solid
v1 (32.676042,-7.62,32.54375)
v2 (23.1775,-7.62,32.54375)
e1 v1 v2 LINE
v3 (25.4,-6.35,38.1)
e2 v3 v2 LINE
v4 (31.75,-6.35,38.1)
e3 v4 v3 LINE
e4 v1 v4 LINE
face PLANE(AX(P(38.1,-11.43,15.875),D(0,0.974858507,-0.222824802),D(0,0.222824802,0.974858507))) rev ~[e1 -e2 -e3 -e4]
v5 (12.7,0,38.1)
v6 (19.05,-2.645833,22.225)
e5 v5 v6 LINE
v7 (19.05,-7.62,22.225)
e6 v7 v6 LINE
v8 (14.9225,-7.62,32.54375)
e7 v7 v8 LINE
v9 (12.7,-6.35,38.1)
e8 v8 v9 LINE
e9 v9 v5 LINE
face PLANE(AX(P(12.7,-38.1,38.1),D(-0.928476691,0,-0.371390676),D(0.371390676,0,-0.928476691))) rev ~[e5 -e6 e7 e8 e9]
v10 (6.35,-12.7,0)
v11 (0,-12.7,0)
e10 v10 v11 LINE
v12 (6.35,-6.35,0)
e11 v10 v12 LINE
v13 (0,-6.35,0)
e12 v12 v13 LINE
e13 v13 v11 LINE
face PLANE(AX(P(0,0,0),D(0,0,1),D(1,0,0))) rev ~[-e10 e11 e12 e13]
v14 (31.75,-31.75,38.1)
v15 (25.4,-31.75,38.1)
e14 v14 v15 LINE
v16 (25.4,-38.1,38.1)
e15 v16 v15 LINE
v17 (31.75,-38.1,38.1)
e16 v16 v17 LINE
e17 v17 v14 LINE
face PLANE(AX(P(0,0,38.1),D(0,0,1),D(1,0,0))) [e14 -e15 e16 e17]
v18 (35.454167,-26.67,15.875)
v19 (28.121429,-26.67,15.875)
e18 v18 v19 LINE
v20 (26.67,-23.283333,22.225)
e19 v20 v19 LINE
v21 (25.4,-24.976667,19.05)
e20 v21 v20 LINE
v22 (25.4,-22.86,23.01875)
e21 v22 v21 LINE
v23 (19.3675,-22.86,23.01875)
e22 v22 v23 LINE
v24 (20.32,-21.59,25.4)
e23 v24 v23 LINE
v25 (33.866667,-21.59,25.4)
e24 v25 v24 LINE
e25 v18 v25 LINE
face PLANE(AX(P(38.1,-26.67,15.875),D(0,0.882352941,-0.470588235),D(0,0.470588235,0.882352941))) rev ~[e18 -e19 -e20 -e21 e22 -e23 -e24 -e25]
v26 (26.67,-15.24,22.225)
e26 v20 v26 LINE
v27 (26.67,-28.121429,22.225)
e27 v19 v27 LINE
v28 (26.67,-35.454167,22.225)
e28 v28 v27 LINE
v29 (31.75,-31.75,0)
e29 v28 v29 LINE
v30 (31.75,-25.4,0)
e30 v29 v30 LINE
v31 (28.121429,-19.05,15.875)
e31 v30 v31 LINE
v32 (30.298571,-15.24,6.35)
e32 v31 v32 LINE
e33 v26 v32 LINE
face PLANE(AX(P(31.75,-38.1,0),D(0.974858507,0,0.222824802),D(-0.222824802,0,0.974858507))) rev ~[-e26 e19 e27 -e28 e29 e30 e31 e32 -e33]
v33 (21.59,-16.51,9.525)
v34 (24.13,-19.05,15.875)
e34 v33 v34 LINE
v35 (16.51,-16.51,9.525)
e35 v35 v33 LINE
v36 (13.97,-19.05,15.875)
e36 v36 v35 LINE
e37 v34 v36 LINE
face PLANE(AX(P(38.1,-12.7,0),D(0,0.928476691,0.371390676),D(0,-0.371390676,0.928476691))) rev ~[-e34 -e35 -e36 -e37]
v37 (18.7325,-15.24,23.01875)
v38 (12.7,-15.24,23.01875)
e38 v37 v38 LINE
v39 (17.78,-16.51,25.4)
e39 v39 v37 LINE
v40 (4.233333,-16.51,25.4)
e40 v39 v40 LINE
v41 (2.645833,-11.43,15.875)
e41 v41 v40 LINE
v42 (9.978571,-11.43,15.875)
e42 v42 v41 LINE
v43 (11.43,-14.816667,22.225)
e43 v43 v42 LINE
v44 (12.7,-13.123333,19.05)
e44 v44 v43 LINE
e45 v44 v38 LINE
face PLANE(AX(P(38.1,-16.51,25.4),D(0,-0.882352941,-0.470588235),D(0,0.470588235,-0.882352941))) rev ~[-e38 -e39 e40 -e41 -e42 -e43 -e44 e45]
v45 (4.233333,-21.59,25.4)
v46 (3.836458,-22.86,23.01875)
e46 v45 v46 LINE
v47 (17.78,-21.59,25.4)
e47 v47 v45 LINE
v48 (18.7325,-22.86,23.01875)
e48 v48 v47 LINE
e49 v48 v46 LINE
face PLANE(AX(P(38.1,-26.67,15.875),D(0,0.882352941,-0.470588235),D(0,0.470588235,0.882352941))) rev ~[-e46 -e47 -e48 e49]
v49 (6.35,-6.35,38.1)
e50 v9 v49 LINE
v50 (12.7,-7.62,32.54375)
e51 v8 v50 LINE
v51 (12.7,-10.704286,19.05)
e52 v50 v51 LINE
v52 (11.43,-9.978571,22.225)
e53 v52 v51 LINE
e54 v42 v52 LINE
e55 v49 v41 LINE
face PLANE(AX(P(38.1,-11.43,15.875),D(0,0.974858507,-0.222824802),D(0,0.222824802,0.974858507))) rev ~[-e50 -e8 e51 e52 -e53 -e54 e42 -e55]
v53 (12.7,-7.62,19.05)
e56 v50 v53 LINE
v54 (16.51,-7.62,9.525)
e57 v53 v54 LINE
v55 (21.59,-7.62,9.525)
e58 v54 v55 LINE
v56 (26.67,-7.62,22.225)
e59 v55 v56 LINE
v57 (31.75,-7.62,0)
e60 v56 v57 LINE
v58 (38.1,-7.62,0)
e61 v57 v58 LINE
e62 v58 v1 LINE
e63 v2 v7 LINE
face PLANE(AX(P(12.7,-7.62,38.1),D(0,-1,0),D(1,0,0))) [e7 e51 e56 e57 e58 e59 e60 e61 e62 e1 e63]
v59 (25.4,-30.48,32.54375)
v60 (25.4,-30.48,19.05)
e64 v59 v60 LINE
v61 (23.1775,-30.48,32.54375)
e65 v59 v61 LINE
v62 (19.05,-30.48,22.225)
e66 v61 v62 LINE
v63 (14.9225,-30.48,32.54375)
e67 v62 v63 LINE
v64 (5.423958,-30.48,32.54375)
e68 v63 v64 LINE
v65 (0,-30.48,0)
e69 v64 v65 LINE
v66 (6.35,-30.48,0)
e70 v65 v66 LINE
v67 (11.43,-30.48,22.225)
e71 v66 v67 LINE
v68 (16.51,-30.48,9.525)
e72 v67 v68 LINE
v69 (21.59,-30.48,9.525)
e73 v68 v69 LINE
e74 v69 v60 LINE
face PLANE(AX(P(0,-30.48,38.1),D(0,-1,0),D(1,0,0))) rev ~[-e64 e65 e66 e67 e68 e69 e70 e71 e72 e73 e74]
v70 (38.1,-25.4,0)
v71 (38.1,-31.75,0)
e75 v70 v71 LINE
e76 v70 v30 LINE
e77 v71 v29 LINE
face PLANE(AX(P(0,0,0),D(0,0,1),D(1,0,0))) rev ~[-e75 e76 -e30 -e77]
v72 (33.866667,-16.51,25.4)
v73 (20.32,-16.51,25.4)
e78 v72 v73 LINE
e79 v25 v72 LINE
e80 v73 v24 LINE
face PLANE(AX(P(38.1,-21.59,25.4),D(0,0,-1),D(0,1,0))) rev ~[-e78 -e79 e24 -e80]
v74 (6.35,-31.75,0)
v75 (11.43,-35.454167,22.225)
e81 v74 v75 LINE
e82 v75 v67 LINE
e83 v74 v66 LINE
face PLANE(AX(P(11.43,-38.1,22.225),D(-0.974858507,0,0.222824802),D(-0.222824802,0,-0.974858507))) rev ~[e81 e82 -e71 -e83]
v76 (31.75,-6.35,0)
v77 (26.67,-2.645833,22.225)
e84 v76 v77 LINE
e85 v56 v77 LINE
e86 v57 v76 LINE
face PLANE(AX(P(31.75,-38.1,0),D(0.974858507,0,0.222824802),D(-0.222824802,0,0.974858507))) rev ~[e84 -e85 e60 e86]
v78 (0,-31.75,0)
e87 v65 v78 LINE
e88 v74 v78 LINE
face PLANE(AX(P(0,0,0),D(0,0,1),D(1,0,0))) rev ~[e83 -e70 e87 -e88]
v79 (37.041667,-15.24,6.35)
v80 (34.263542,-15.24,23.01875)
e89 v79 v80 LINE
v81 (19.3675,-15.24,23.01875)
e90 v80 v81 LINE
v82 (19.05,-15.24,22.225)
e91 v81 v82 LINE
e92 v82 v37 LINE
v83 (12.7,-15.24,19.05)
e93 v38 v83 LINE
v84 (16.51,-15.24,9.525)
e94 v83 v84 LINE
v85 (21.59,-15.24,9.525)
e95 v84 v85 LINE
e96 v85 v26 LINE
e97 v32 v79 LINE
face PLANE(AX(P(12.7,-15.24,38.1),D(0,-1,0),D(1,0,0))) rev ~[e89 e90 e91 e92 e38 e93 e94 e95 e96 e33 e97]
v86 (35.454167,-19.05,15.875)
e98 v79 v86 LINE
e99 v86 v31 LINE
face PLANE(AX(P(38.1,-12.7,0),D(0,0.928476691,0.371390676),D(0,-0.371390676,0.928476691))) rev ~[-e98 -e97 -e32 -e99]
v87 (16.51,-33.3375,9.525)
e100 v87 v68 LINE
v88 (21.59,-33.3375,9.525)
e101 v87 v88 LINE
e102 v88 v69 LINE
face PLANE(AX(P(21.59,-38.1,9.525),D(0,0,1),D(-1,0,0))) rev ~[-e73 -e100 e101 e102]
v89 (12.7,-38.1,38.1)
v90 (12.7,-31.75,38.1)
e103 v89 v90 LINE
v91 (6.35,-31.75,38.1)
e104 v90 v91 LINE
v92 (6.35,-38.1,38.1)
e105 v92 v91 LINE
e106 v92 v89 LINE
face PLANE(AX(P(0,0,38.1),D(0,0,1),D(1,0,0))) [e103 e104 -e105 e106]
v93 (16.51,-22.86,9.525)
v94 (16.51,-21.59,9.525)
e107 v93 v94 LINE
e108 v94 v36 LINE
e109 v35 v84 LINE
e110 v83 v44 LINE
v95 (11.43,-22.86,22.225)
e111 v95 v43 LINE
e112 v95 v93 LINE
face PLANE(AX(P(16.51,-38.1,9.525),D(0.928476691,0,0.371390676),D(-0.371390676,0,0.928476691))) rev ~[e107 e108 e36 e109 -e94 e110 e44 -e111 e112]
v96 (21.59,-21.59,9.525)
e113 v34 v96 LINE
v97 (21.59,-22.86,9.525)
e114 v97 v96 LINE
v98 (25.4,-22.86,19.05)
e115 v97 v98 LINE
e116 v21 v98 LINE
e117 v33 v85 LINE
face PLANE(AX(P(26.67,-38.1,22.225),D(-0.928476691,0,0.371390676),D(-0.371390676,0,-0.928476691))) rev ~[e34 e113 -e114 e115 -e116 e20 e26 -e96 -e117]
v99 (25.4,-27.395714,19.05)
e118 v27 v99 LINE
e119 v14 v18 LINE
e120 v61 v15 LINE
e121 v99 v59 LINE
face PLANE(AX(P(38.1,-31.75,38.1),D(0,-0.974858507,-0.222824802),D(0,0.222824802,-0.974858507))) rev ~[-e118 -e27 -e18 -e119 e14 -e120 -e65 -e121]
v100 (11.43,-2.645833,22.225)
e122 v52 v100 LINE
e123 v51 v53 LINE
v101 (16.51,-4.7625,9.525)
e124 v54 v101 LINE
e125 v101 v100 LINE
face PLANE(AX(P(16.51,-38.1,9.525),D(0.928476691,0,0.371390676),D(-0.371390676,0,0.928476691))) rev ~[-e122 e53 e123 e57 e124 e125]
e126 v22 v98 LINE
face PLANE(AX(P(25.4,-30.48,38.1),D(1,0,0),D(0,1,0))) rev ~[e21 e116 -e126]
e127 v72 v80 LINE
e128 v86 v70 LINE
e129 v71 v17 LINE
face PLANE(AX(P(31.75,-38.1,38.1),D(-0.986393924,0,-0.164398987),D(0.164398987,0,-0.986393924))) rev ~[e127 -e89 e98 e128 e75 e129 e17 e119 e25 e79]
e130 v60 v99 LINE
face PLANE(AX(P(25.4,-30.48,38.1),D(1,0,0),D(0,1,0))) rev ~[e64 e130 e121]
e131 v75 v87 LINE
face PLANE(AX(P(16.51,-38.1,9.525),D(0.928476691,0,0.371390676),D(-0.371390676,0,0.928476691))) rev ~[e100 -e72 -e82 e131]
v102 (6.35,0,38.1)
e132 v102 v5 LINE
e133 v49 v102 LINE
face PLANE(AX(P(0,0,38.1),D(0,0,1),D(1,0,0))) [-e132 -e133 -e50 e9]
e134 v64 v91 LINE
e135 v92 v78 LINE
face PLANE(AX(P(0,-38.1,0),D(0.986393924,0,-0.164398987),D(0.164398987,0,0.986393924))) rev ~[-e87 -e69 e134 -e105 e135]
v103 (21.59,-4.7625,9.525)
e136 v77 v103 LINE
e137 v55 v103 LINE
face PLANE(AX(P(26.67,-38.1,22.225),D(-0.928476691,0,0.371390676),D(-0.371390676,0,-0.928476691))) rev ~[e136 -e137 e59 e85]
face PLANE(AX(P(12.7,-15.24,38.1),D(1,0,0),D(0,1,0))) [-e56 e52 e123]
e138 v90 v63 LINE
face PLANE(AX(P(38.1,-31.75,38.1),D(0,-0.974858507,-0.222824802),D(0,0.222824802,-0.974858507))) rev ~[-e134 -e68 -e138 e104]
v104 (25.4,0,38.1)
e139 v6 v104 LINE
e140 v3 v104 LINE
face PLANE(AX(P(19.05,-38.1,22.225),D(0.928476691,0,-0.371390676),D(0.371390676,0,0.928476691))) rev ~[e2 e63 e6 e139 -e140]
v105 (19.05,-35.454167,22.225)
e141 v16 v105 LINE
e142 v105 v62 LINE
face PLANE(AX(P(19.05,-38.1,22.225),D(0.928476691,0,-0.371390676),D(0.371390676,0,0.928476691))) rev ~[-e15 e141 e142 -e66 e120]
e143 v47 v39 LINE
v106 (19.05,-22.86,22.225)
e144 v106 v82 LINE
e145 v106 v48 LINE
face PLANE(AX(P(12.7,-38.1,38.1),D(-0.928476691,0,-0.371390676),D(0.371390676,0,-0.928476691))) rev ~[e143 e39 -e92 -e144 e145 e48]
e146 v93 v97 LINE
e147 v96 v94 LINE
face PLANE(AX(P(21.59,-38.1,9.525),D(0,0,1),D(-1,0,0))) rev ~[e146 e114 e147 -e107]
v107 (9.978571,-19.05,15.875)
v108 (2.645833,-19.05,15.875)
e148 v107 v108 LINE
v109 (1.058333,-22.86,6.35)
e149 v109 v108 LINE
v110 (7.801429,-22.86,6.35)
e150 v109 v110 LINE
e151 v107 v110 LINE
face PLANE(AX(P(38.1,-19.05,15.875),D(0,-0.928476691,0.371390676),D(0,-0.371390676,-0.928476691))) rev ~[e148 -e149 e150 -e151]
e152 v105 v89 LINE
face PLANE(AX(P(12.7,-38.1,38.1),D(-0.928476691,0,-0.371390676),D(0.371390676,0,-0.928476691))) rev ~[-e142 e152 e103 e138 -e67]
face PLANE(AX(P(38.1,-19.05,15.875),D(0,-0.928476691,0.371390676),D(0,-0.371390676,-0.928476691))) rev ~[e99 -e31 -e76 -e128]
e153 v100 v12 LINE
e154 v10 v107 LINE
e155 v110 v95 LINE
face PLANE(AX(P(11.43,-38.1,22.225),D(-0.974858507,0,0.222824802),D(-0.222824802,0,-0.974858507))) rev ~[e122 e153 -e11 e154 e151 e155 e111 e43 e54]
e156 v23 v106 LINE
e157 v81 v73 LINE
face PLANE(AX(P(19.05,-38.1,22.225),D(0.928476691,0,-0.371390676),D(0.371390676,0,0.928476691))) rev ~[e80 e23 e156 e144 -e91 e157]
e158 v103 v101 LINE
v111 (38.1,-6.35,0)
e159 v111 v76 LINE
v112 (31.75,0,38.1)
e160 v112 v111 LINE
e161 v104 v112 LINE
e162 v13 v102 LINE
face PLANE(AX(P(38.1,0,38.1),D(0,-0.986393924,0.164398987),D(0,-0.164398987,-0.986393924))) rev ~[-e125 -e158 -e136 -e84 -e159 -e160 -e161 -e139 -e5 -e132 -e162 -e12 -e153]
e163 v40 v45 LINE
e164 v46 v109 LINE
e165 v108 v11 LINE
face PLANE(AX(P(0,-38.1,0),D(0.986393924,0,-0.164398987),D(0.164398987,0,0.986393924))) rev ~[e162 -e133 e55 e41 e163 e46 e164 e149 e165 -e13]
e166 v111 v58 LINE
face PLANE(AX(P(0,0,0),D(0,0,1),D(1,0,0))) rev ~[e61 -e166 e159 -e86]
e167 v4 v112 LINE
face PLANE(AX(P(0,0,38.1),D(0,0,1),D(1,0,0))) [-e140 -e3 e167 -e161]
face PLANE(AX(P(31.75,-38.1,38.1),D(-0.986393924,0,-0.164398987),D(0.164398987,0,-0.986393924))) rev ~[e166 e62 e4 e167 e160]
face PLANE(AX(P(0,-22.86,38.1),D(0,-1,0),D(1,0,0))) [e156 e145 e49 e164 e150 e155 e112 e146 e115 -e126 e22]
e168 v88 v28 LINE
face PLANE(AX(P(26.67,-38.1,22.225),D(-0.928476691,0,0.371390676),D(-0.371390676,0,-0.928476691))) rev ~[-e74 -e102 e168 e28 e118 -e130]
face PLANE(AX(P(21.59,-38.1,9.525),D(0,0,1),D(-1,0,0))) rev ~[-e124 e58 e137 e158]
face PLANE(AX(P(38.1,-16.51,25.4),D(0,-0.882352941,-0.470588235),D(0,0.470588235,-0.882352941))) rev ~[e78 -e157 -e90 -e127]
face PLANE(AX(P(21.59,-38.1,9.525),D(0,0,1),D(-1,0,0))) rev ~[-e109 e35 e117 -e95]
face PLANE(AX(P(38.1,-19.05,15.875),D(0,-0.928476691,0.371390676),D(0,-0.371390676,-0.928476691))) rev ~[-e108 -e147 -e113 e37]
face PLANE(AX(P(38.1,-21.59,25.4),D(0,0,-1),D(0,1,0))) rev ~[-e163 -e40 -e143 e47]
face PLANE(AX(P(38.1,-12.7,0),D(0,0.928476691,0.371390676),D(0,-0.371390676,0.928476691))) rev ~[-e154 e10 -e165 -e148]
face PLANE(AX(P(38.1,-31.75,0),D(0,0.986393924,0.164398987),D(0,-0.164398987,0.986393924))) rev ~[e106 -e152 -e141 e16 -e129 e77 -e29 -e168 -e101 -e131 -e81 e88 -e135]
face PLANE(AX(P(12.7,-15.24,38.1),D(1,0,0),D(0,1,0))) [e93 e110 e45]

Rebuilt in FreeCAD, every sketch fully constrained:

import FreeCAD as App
import Part
import Sketcher
from FreeCAD import Vector
Q = App.Units.Quantity


def add_polygon(sketch, points):
    """Adds a closed chain of lines whose ends are joined by coincident constraints."""
    first, n = sketch.GeometryCount, len(points)
    for a, b in zip(points, points[1:] + points[:1]):
        sketch.addGeometry(Part.LineSegment(App.Vector(*a, 0), App.Vector(*b, 0)), False)
    for i in range(n):
        sketch.addConstraint(Sketcher.Constraint("Coincident", first + i, 2, first + (i + 1) % n, 1))

doc = App.newDocument("Part")
params = doc.addObject("Spreadsheet::Sheet", "Params")
for row, (alias, value) in enumerate([
    ("sketch1_width", "1.5 in"),
    ("pad1_length", "1.5 in"),
    ("sketch2_width", "1 in"),
    ("sketch2_width2", "0.2 in"),
    ("sketch2_width3", "0.5 in"),
    ("sketch2_height", "1.5 in"),
    ("sketch2_length", "0.425 in"),
    ("pocket1_length", "1.5 in"),
    ("sketch3_width", "1 in"),
    ("sketch3_width2", "0.5 in"),
    ("sketch3_width3", "0.2 in"),
    ("sketch3_height", "1.5 in"),
    ("pocket2_length", "1.5 in"),
    ("sketch4_width", "1 in"),
    ("sketch4_height", "0.3 in"),
    ("pocket3_length", "1.5 in"),
], start=1):
    params.set(f"A{row}", alias)
    params.set(f"B{row}", "=" + value)
    params.setAlias(f"B{row}", alias)

body = doc.addObject("PartDesign::Body", "Body")

sketch1 = body.newObject("Sketcher::SketchObject", "Sketch")
sketch1.AttachmentSupport = (doc.getObject("XZ_Plane"), [""])
sketch1.MapMode = "FlatFace"
add_polygon(sketch1, [(0, 38), (0, 0), (38, 0), (38, 38)])
sketch1.addConstraint(Sketcher.Constraint("Vertical", 0))
sketch1.addConstraint(Sketcher.Constraint("Horizontal", 1))
sketch1.addConstraint(Sketcher.Constraint("Vertical", 2))
sketch1.addConstraint(Sketcher.Constraint("Horizontal", 3))
sketch1.addConstraint(Sketcher.Constraint("Coincident", 0, 2, -1, 1))
sketch1.addConstraint(Sketcher.Constraint("Equal", 3, 0))
sketch1.addConstraint(Sketcher.Constraint("DistanceX", 1, 1, 1, 2, Q("1.5 in")))
sketch1.setExpression("Constraints[10]", "Params.sketch1_width")
pad1 = body.newObject("PartDesign::Pad", "Pad")
pad1.Profile = sketch1
pad1.setExpression("Length", "Params.pad1_length")

sketch2 = body.newObject("Sketcher::SketchObject", "Sketch001")
sketch2.AttachmentSupport = (doc.getObject("YZ_Plane"), [""])
sketch2.MapMode = "FlatFace"
sketch2.AttachmentOffset = App.Placement(Vector(0, 0, 1.5 * 25.4), App.Rotation())
add_polygon(sketch2, [(-6, 38), (-32, 38), (-27, 16), (-22, 25), (-17, 25), (-11, 16)])
add_polygon(sketch2, [(-32, 0), (-38, 38), (-38, 0)])
add_polygon(sketch2, [(-19, 16), (-25, 0), (-13, 0)])
add_polygon(sketch2, [(0, 0), (0, 38), (-6, 0)])
sketch2.addConstraint(Sketcher.Constraint("Horizontal", 0))
sketch2.addConstraint(Sketcher.Constraint("Horizontal", 3))
sketch2.addConstraint(Sketcher.Constraint("Vertical", 7))
sketch2.addConstraint(Sketcher.Constraint("Horizontal", 8))
sketch2.addConstraint(Sketcher.Constraint("Horizontal", 10))
sketch2.addConstraint(Sketcher.Constraint("Vertical", 12))
sketch2.addConstraint(Sketcher.Constraint("Horizontal", 14))
sketch2.addConstraint(Sketcher.Constraint("Coincident", 14, 2, -1, 1))
sketch2.addConstraint(Sketcher.Constraint("PointOnObject", 7, 2, -1))
sketch2.addConstraint(Sketcher.Constraint("PointOnObject", 9, 2, -1))
sketch2.addConstraint(Sketcher.Constraint("Horizontal", 1, 2, 4, 2))
sketch2.addConstraint(Sketcher.Constraint("Horizontal", 5, 2, 6, 2))
sketch2.addConstraint(Sketcher.Constraint("Horizontal", 4, 2, 11, 2))
sketch2.addConstraint(Sketcher.Constraint("Horizontal", 6, 2, 12, 2))
sketch2.addConstraint(Sketcher.Constraint("Vertical", 0, 2, 8, 2))
sketch2.addConstraint(Sketcher.Constraint("Vertical", 5, 2, 13, 2))
sketch2.addConstraint(Sketcher.Constraint("Equal", 8, 14))
sketch2.addConstraint(Sketcher.Constraint("Equal", 2, 4))
sketch2.addConstraint(Sketcher.Constraint("Equal", 1, 5))
sketch2.addConstraint(Sketcher.Constraint("Equal", 9, 11))
sketch2.addConstraint(Sketcher.Constraint("DistanceX", 0, 2, 0, 1, Q("1 in")))
sketch2.addConstraint(Sketcher.Constraint("DistanceX", 3, 1, 3, 2, Q("0.2 in")))
sketch2.addConstraint(Sketcher.Constraint("DistanceX", 10, 1, 10, 2, Q("0.5 in")))
sketch2.addConstraint(Sketcher.Constraint("DistanceY", 7, 2, 7, 1, Q("1.5 in")))
sketch2.addConstraint(Sketcher.Constraint("DistanceY", -1, 1, 2, 2, Q("1 in")))
sketch2.addConstraint(Sketcher.Constraint("DistanceX", 9, 2, -1, 1, Q("1 in")))
sketch2.addConstraint(Sketcher.Constraint("DistanceX", 7, 2, 10, 2, Q("1 in")))
sketch2.addConstraint(Sketcher.Constraint("DistanceX", 0, 2, 1, 2, Q("0.2 in")))
sketch2.addConstraint(Sketcher.Constraint("Distance", 2, Q("0.425 in")))
sketch2.setExpression("Constraints[35]", "Params.sketch2_width")
sketch2.setExpression("Constraints[36]", "Params.sketch2_width2")
sketch2.setExpression("Constraints[37]", "Params.sketch2_width3")
sketch2.setExpression("Constraints[38]", "Params.sketch2_height")
sketch2.setExpression("Constraints[43]", "Params.sketch2_length")
pocket1 = body.newObject("PartDesign::Pocket", "Pocket")
pocket1.Profile = sketch2
pocket1.setExpression("Length", "Params.pocket1_length")

sketch3 = body.newObject("Sketcher::SketchObject", "Sketch002")
sketch3.AttachmentSupport = (doc.getObject("XZ_Plane"), [""])
sketch3.MapMode = "FlatFace"
sketch3.AttachmentOffset = App.Placement(Vector(0, 0, 1.5 * 25.4), App.Rotation())
add_polygon(sketch3, [(25, 38), (13, 38), (19, 22)])
add_polygon(sketch3, [(6, 38), (0, 38), (0, 0)])
add_polygon(sketch3, [(11, 22), (6, 0), (32, 0), (27, 22), (22, 10), (17, 10)])
add_polygon(sketch3, [(32, 38), (38, 0), (38, 38)])
sketch3.addConstraint(Sketcher.Constraint("Horizontal", 0))
sketch3.addConstraint(Sketcher.Constraint("Horizontal", 3))
sketch3.addConstraint(Sketcher.Constraint("Vertical", 4))
sketch3.addConstraint(Sketcher.Constraint("Horizontal", 7))
sketch3.addConstraint(Sketcher.Constraint("Horizontal", 10))
sketch3.addConstraint(Sketcher.Constraint("Vertical", 13))
sketch3.addConstraint(Sketcher.Constraint("Horizontal", 14))
sketch3.addConstraint(Sketcher.Constraint("Coincident", 4, 2, -1, 1))
sketch3.addConstraint(Sketcher.Constraint("PointOnObject", 6, 2, -1))
sketch3.addConstraint(Sketcher.Constraint("PointOnObject", 12, 2, -1))
sketch3.addConstraint(Sketcher.Constraint("Parallel", 2, 9))
sketch3.addConstraint(Sketcher.Constraint("Parallel", 1, 11))
sketch3.addConstraint(Sketcher.Constraint("Horizontal", 2, 2, 3, 2))
sketch3.addConstraint(Sketcher.Constraint("Horizontal", 1, 2, 8, 2))
sketch3.addConstraint(Sketcher.Constraint("Horizontal", 8, 2, 11, 2))
sketch3.addConstraint(Sketcher.Constraint("Horizontal", 5, 2, 13, 2))
sketch3.addConstraint(Sketcher.Constraint("Vertical", 5, 2, 6, 2))
sketch3.addConstraint(Sketcher.Constraint("Vertical", 7, 2, 14, 2))
sketch3.addConstraint(Sketcher.Constraint("Equal", 3, 14))
sketch3.addConstraint(Sketcher.Constraint("Equal", 1, 2))
sketch3.addConstraint(Sketcher.Constraint("Equal", 6, 8))
sketch3.addConstraint(Sketcher.Constraint("DistanceX", 7, 1, 7, 2, Q("1 in")))
sketch3.addConstraint(Sketcher.Constraint("DistanceX", 0, 2, 0, 1, Q("0.5 in")))
sketch3.addConstraint(Sketcher.Constraint("DistanceX", 10, 2, 10, 1, Q("0.2 in")))
sketch3.addConstraint(Sketcher.Constraint("DistanceY", 4, 2, 4, 1, Q("1.5 in")))
sketch3.addConstraint(Sketcher.Constraint("DistanceX", -1, 1, 2, 2, Q("1 in")))
sketch3.addConstraint(Sketcher.Constraint("DistanceX", 0, 2, 13, 2, Q("1 in")))
sketch3.addConstraint(Sketcher.Constraint("DistanceX", 1, 2, 8, 2, Q("0.3 in")))
sketch3.addConstraint(Sketcher.Constraint("DistanceY", 9, 2, 1, 2, Q("0.5 in")))
sketch3.setExpression("Constraints[36]", "Params.sketch3_width")
sketch3.setExpression("Constraints[37]", "Params.sketch3_width2")
sketch3.setExpression("Constraints[38]", "Params.sketch3_width3")
sketch3.setExpression("Constraints[39]", "Params.sketch3_height")
pocket2 = body.newObject("PartDesign::Pocket", "Pocket001")
pocket2.Profile = sketch3
pocket2.setExpression("Length", "Params.pocket2_length")

sketch4 = body.newObject("Sketcher::SketchObject", "Sketch003")
sketch4.AttachmentSupport = (doc.getObject("XY_Plane"), [""])
sketch4.MapMode = "FlatFace"
sketch4.AttachmentOffset = App.Placement(Vector(0, 0, 1.5 * 25.4), App.Rotation())
add_polygon(sketch4, [(0, -23), (0, -30), (25, -30), (25, -23)])
add_polygon(sketch4, [(13, -8), (13, -15), (38, -15), (38, -8)])
sketch4.addConstraint(Sketcher.Constraint("Vertical", 0))
sketch4.addConstraint(Sketcher.Constraint("Horizontal", 1))
sketch4.addConstraint(Sketcher.Constraint("Vertical", 2))
sketch4.addConstraint(Sketcher.Constraint("Horizontal", 3))
sketch4.addConstraint(Sketcher.Constraint("Vertical", 4))
sketch4.addConstraint(Sketcher.Constraint("Horizontal", 5))
sketch4.addConstraint(Sketcher.Constraint("Vertical", 6))
sketch4.addConstraint(Sketcher.Constraint("Horizontal", 7))
sketch4.addConstraint(Sketcher.Constraint("PointOnObject", 0, 2, -2))
sketch4.addConstraint(Sketcher.Constraint("Equal", 3, 5))
sketch4.addConstraint(Sketcher.Constraint("Equal", 2, 4))
sketch4.addConstraint(Sketcher.Constraint("DistanceX", 1, 1, 1, 2, Q("1 in")))
sketch4.addConstraint(Sketcher.Constraint("DistanceY", 0, 2, 0, 1, Q("0.3 in")))
sketch4.addConstraint(Sketcher.Constraint("DistanceY", 0, 2, -1, 1, Q("1.2 in")))
sketch4.addConstraint(Sketcher.Constraint("DistanceX", -1, 1, 4, 2, Q("0.5 in")))
sketch4.addConstraint(Sketcher.Constraint("DistanceY", 4, 2, -1, 1, Q("0.6 in")))
sketch4.setExpression("Constraints[19]", "Params.sketch4_width")
sketch4.setExpression("Constraints[20]", "Params.sketch4_height")
pocket3 = body.newObject("PartDesign::Pocket", "Pocket002")
pocket3.Profile = sketch4
pocket3.setExpression("Length", "Params.pocket3_length")

doc.recompute()
